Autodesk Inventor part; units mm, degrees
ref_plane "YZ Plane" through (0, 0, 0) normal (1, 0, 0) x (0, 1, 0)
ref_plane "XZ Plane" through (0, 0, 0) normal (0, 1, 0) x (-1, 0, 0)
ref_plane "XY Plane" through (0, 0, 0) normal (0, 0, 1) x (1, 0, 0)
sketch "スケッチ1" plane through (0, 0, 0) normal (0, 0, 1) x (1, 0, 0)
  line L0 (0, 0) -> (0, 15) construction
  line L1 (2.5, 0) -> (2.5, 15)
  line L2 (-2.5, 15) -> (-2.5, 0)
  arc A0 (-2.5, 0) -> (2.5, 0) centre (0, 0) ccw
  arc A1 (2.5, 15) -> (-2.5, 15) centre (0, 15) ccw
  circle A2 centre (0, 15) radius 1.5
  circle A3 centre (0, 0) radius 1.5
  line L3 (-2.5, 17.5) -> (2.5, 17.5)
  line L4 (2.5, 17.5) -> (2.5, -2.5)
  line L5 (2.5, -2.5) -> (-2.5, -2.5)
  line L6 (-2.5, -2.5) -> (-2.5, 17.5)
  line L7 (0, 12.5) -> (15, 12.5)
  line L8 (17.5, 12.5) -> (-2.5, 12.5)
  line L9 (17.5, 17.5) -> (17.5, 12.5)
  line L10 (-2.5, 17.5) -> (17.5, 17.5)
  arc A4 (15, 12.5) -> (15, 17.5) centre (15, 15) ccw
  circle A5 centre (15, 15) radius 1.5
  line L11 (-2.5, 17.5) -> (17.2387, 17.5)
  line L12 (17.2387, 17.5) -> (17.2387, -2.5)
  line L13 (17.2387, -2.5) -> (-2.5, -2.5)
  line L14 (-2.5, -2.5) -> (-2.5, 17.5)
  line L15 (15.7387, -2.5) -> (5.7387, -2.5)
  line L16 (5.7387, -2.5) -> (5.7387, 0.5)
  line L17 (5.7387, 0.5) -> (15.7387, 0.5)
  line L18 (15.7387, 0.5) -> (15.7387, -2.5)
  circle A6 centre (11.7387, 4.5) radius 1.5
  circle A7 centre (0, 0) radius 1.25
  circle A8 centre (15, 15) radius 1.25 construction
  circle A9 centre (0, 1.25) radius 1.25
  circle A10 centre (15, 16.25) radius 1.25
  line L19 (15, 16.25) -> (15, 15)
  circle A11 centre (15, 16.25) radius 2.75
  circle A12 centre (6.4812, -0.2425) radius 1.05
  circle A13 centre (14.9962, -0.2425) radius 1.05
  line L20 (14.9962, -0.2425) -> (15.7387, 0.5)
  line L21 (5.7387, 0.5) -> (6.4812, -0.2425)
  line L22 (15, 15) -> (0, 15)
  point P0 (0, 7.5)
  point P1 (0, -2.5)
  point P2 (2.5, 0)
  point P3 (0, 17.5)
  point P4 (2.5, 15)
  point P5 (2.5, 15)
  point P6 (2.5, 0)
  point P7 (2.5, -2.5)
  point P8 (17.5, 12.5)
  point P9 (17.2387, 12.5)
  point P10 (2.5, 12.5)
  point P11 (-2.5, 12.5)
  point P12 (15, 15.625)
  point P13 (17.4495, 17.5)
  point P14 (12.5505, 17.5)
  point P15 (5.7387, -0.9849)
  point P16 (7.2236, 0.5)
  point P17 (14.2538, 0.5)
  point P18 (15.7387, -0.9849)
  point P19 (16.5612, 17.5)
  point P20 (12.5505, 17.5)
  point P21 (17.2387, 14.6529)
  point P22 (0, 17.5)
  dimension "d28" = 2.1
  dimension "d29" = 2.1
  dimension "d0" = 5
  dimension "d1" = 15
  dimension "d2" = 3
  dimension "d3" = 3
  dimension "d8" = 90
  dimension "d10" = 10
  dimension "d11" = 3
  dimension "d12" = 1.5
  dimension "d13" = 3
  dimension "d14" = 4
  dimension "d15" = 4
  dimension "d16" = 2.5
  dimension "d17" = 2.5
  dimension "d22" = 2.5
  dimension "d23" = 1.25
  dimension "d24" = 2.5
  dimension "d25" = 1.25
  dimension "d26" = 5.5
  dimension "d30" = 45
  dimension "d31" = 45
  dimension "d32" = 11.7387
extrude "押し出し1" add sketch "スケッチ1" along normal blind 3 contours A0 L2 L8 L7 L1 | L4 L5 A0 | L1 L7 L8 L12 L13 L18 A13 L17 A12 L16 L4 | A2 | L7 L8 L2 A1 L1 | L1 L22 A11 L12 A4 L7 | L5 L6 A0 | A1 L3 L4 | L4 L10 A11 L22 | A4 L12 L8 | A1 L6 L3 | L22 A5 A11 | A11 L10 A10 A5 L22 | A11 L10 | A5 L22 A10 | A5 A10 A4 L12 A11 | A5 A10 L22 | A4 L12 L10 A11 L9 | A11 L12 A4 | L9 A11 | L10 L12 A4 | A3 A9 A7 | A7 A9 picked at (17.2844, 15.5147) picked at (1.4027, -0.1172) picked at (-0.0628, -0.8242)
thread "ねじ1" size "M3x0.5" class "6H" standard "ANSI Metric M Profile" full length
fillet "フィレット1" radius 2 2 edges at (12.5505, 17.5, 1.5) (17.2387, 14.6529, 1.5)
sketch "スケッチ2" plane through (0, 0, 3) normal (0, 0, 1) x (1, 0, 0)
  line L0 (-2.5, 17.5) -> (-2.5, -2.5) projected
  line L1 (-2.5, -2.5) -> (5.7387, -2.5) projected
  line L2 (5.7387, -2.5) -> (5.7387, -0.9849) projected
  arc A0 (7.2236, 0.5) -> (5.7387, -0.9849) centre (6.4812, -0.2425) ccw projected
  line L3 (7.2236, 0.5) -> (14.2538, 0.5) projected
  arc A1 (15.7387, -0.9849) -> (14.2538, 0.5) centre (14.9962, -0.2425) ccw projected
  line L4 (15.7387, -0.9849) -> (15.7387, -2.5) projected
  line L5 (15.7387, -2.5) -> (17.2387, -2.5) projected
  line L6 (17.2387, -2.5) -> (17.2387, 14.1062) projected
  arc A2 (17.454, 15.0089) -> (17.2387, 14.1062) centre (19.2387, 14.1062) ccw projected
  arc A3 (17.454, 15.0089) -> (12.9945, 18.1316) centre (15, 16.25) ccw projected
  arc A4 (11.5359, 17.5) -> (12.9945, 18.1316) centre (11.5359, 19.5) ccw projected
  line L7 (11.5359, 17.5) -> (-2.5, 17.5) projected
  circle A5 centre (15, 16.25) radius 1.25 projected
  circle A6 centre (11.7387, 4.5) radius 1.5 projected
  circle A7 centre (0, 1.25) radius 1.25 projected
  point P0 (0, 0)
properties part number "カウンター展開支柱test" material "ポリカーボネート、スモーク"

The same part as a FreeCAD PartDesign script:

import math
import FreeCAD as App
import Part
import Sketcher


def edges_at(feature, points):
    """Names of the edges that pass closest to the given points."""
    edges = feature.Shape.Edges
    near = lambda p: min(range(len(edges)), key=lambda i: edges[i].distToShape(Part.Vertex(*p))[0])
    return sorted({f"Edge{near(p) + 1}" for p in points})

doc = App.newDocument("Part")
params = doc.addObject("Spreadsheet::Sheet", "Params")
for row, (alias, value) in enumerate([
    ("sketch1_diameter", "3 mm"),
    ("sketch1_diameter2", "2.5 mm"),
    ("sketch1_radius", "1.05 mm"),
    ("sketch1_radius2", "2.75 mm"),
    ("sketch1_width", "1.5 mm"),
    ("pad1_length", "3 mm"),
    ("fillet_radius", "2 mm"),
], start=1):
    params.set(f"A{row}", alias)
    params.set(f"B{row}", "=" + value)
    params.setAlias(f"B{row}", alias)

body = doc.addObject("PartDesign::Body", "Body")

# Sketch on XY plane
sketch1 = body.newObject("Sketcher::SketchObject", "Sketch")
sketch1.AttachmentSupport = (doc.getObject("XY_Plane"), [""])
sketch1.MapMode = "FlatFace"
sketch1.addGeometry([
    Part.LineSegment(App.Vector(-2.5, -2.5, 0), App.Vector(5.7387, -2.5, 0)),  # 0
    Part.LineSegment(App.Vector(5.7387, -2.5, 0), App.Vector(5.7387, -0.984924, 0)),  # 1
    Part.ArcOfCircle(Part.Circle(App.Vector(6.4812, -0.2425, 0), App.Vector(0, 0, 1), 1.05), math.radians(45.002923), math.radians(224.997077)),  # 2
    Part.LineSegment(App.Vector(7.223624, 0.5, 0), App.Vector(14.253776, 0.5, 0)),  # 3
    Part.ArcOfCircle(Part.Circle(App.Vector(14.9962, -0.2425, 0), App.Vector(0, 0, 1), 1.05), math.radians(-44.997077), math.radians(134.997077)),  # 4
    Part.LineSegment(App.Vector(15.7387, -0.984924, 0), App.Vector(15.7387, -2.5, 0)),  # 5
    Part.LineSegment(App.Vector(15.7387, -2.5, 0), App.Vector(17.2387, -2.5, 0)),  # 6
    Part.LineSegment(App.Vector(17.2387, -2.5, 0), App.Vector(17.2387, 14.652902, 0)),  # 7
    Part.ArcOfCircle(Part.Circle(App.Vector(15, 16.25, 0), App.Vector(0, 0, 1), 2.75), math.radians(-35.504222), math.radians(152.964308)),  # 8
    Part.LineSegment(App.Vector(12.55051, 17.5, 0), App.Vector(-2.5, 17.5, 0)),  # 9
    Part.LineSegment(App.Vector(-2.5, 17.5, 0), App.Vector(-2.5, -2.5, 0)),  # 10
    Part.Circle(App.Vector(0, 1.25, 0), App.Vector(0, 0, 1), 1.25),  # 11
    Part.Circle(App.Vector(11.7387, 4.5, 0), App.Vector(0, 0, 1), 1.5),  # 12
    Part.Circle(App.Vector(15, 16.25, 0), App.Vector(0, 0, 1), 1.25),  # 13
], False)
sketch1.addConstraint([
    Sketcher.Constraint("Coincident", 0, 2, 1, 1),
    Sketcher.Constraint("Coincident", 1, 2, 2, 2),
    Sketcher.Constraint("Coincident", 2, 1, 3, 1),
    Sketcher.Constraint("Coincident", 3, 2, 4, 2),
    Sketcher.Constraint("Coincident", 4, 1, 5, 1),
    Sketcher.Constraint("Coincident", 5, 2, 6, 1),
    Sketcher.Constraint("Coincident", 6, 2, 7, 1),
    Sketcher.Constraint("Coincident", 7, 2, 8, 1),
    Sketcher.Constraint("Coincident", 8, 2, 9, 1),
    Sketcher.Constraint("Coincident", 9, 2, 10, 1),
    Sketcher.Constraint("Coincident", 10, 2, 0, 1),
    Sketcher.Constraint("Horizontal", 0),
    Sketcher.Constraint("Vertical", 1),
    Sketcher.Constraint("Horizontal", 3),
    Sketcher.Constraint("Vertical", 5),
    Sketcher.Constraint("Horizontal", 6),
    Sketcher.Constraint("Vertical", 7),
    Sketcher.Constraint("Horizontal", 9),
    Sketcher.Constraint("Vertical", 10),
    Sketcher.Constraint("Coincident", 13, 3, 8, 3),
    Sketcher.Constraint("Equal", 2, 4),
    Sketcher.Constraint("Equal", 11, 13),
    Sketcher.Constraint("PointOnObject", 11, 3, -2),
    Sketcher.Constraint("Horizontal", 2, 3, 4, 3),
    Sketcher.Constraint("Horizontal", 1, 2, 4, 1),
    Sketcher.Constraint("Horizontal", 0, 2, 5, 2),
    Sketcher.Constraint("Diameter", 12, 3.0),
    Sketcher.Constraint("Diameter", 11, 2.5),
    Sketcher.Constraint("Radius", 2, 1.05),
    Sketcher.Constraint("Radius", 8, 2.75),
    Sketcher.Constraint("DistanceX", 6, 1, 6, 2, 1.5),
    Sketcher.Constraint("DistanceX", -1, 1, 8, 3, 15.0),
    Sketcher.Constraint("DistanceY", 11, 3, 8, 3, 15.0),
    Sketcher.Constraint("DistanceY", 0, 2, 2, 1, 3.0),
    Sketcher.Constraint("DistanceY", 2, 1, 12, 3, 4.0),
    Sketcher.Constraint("DistanceX", 12, 3, 4, 1, 4.0),
    Sketcher.Constraint("DistanceY", 0, 2, -1, 1, 2.5),
    Sketcher.Constraint("DistanceX", 9, 2, -1, 1, 2.5),
    Sketcher.Constraint("DistanceY", 10, 2, 10, 1, 20.0),
    Sketcher.Constraint("DistanceY", -1, 1, 11, 3, 1.25),
    Sketcher.Constraint("DistanceX", 0, 2, 12, 3, 6.0),
    Sketcher.Constraint("DistanceX", -1, 1, 12, 3, 11.7387),
    Sketcher.Constraint("DistanceY", 1, 1, 1, 2, 1.515),
    Sketcher.Constraint("DistanceX", 2, 3, 4, 3, 8.515),
])
sketch1.setExpression("Constraints[26]", "Params.sketch1_diameter")
sketch1.setExpression("Constraints[27]", "Params.sketch1_diameter2")
sketch1.setExpression("Constraints[28]", "Params.sketch1_radius")
sketch1.setExpression("Constraints[29]", "Params.sketch1_radius2")
sketch1.setExpression("Constraints[30]", "Params.sketch1_width")
pad1 = body.newObject("PartDesign::Pad", "Pad")
pad1.Profile = sketch1
pad1.setExpression("Length", "Params.pad1_length")
doc.recompute()

fillet = body.newObject("PartDesign::Fillet", "Fillet")
fillet.Base = (pad1, edges_at(pad1, [(12.55, 17.5, 1.5), (17.239, 14.653, 1.5)]))
fillet.setExpression("Radius", "Params.fillet_radius")

doc.recompute()
